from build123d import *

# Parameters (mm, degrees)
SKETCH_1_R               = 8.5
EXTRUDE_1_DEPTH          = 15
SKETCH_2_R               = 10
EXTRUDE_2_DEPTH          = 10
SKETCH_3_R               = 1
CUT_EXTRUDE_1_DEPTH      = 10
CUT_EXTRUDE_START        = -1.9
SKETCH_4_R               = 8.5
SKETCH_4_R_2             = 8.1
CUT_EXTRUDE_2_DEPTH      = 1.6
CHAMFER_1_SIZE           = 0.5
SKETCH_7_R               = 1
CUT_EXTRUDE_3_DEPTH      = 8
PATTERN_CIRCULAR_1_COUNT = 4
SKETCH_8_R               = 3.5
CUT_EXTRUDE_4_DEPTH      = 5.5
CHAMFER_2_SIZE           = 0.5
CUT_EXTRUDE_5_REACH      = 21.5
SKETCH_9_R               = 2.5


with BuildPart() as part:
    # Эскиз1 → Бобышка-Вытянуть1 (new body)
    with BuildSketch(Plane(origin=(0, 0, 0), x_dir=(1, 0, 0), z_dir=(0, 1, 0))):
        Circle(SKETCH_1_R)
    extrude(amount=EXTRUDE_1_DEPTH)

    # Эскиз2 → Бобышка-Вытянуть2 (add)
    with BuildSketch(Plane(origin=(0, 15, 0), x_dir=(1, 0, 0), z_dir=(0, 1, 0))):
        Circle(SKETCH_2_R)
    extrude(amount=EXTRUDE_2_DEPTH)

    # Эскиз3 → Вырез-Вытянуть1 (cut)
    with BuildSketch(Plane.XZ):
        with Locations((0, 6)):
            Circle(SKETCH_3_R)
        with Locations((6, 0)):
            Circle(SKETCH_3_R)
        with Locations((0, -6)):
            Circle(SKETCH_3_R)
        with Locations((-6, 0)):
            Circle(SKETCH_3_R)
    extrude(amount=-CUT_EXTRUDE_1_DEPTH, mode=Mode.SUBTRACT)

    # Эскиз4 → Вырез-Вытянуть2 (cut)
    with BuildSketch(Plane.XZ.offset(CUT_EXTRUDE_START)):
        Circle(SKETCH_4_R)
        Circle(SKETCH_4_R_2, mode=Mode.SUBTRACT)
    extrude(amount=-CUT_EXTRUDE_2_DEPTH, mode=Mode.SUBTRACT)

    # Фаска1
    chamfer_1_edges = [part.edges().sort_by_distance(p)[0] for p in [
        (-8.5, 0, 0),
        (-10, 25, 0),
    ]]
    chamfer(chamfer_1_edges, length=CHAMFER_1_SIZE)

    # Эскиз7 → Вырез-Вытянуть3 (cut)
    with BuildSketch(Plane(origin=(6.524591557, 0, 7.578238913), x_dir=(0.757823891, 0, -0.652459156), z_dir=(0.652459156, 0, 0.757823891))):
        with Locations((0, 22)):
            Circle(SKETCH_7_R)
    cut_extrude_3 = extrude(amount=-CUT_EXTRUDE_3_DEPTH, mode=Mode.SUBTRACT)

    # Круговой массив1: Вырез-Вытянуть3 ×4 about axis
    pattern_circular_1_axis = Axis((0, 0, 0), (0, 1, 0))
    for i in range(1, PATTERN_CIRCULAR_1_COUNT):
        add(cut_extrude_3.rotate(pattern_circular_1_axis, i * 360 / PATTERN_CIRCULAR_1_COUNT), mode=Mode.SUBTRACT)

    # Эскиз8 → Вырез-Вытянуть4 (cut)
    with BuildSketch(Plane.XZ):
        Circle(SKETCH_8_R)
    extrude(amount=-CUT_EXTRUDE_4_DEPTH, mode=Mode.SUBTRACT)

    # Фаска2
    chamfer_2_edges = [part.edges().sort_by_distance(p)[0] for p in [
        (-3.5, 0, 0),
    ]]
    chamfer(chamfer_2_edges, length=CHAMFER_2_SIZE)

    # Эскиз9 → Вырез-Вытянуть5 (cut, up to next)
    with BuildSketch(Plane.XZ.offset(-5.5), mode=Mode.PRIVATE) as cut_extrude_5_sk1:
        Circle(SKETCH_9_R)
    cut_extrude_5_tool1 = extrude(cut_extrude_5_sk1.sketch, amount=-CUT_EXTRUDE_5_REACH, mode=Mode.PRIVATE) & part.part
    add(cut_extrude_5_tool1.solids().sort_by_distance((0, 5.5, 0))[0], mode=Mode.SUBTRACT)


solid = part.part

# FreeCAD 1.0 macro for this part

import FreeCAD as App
import Part
import Sketcher
Q = App.Units.Quantity


def edges_at(feature, points):
    """Names of the edges that pass closest to the given points."""
    edges = feature.Shape.Edges
    near = lambda p: min(range(len(edges)), key=lambda i: edges[i].distToShape(Part.Vertex(*p))[0])
    return sorted({f"Edge{near(p) + 1}" for p in points})

doc = App.newDocument("Part")
body = doc.addObject("PartDesign::Body", "Body")

sketch1 = doc.addObject("Sketcher::SketchObject", "Sketch")
body.addObject(sketch1)
sketch1.AttachmentSupport = (doc.XZ_Plane, [""])
sketch1.MapMode = "FlatFace"
sketch1.addGeometry(Part.Circle(App.Vector(0, 0, 0), App.Vector(0, 0, 1), 8), False)
sketch1.addConstraint([
    Sketcher.Constraint("Coincident", 0, 3, -1, 1),
    Sketcher.Constraint("Diameter", 0, Q("17 mm")),
])
pad1 = doc.addObject("PartDesign::Pad", "Pad")
body.addObject(pad1)
pad1.Profile = sketch1
pad1.Length = 15
pad1.Reversed = True

sketch2 = doc.addObject("Sketcher::SketchObject", "Sketch001")
body.addObject(sketch2)
sketch2.AttachmentSupport = (doc.XZ_Plane, [""])
sketch2.MapMode = "FlatFace"
sketch2.AttachmentOffset = App.Placement(App.Vector(0, 0, -15), App.Rotation())
sketch2.addGeometry(Part.Circle(App.Vector(0, 0, 0), App.Vector(0, 0, 1), 10), False)
sketch2.addConstraint([
    Sketcher.Constraint("Coincident", 0, 3, -1, 1),
    Sketcher.Constraint("Diameter", 0, Q("20 mm")),
])
pad2 = doc.addObject("PartDesign::Pad", "Pad001")
body.addObject(pad2)
pad2.Profile = sketch2
pad2.Length = 10
pad2.Reversed = True

sketch3 = doc.addObject("Sketcher::SketchObject", "Sketch002")
body.addObject(sketch3)
sketch3.AttachmentSupport = (doc.XZ_Plane, [""])
sketch3.MapMode = "FlatFace"
sketch3.addGeometry([
    Part.Circle(App.Vector(0, 6, 0), App.Vector(0, 0, 1), 1),
    Part.Circle(App.Vector(6, 0, 0), App.Vector(0, 0, 1), 1),
    Part.Circle(App.Vector(0, -6, 0), App.Vector(0, 0, 1), 1),
    Part.Circle(App.Vector(-6, 0, 0), App.Vector(0, 0, 1), 1),
], False)
sketch3.addConstraint([
    Sketcher.Constraint("Equal", 0, 1),
    Sketcher.Constraint("Equal", 1, 2),
    Sketcher.Constraint("Equal", 2, 3),
    Sketcher.Constraint("Symmetric", 0, 3, 2, 3, -1, 1),
    Sketcher.Constraint("Symmetric", 1, 3, 3, 3, -1, 1),
    Sketcher.Constraint("PointOnObject", 0, 3, -2),
    Sketcher.Constraint("PointOnObject", 1, 3, -1),
    Sketcher.Constraint("Diameter", 0, Q("2 mm")),
    Sketcher.Constraint("DistanceY", -1, 1, 0, 3, Q("6 mm")),
    Sketcher.Constraint("DistanceX", -1, 1, 1, 3, Q("6 mm")),
])
pocket1 = doc.addObject("PartDesign::Pocket", "Pocket")
body.addObject(pocket1)
pocket1.Profile = sketch3
pocket1.Length = 10

sketch4 = doc.addObject("Sketcher::SketchObject", "Sketch003")
body.addObject(sketch4)
sketch4.AttachmentSupport = (doc.XZ_Plane, [""])
sketch4.MapMode = "FlatFace"
sketch4.AttachmentOffset = App.Placement(App.Vector(0, 0, -1.9), App.Rotation())
sketch4.addGeometry([
    Part.Circle(App.Vector(0, 0, 0), App.Vector(0, 0, 1), 8),
    Part.Circle(App.Vector(0, 0, 0), App.Vector(0, 0, 1), 8),
], False)
sketch4.addConstraint([
    Sketcher.Constraint("Coincident", 0, 3, -1, 1),
    Sketcher.Constraint("Coincident", 1, 3, -1, 1),
    Sketcher.Constraint("Diameter", 0, Q("17 mm")),
    Sketcher.Constraint("Diameter", 1, Q("16.2 mm")),
])
pocket2 = doc.addObject("PartDesign::Pocket", "Pocket001")
body.addObject(pocket2)
pocket2.Profile = sketch4
pocket2.Length = 1.6
doc.recompute()

chamfer = doc.addObject("PartDesign::Chamfer", "Chamfer")
body.addObject(chamfer)
chamfer.Base = (pocket2, edges_at(pocket2, [(-8.5, 0, 0), (-10, 25, 0)]))
chamfer.Size = 0.5

sketch5 = doc.addObject("Sketcher::SketchObject", "Sketch004")
body.addObject(sketch5)
sketch5.Placement = App.Placement(App.Vector(6.524592, 0, 7.578239), App.Rotation(App.Vector(0.757823891, 0, -0.652459156), App.Vector(0, 1, 0), App.Vector(0.652459156, 0, 0.757823891), "ZXY"))
sketch5.addGeometry(Part.Circle(App.Vector(0, 22, 0), App.Vector(0, 0, 1), 1), False)
sketch5.addConstraint([
    Sketcher.Constraint("PointOnObject", 0, 3, -2),
    Sketcher.Constraint("Diameter", 0, Q("2 mm")),
    Sketcher.Constraint("DistanceY", -1, 1, 0, 3, Q("22 mm")),
])
pocket3 = doc.addObject("PartDesign::Pocket", "Pocket002")
body.addObject(pocket3)
pocket3.Profile = sketch5
pocket3.Length = 8
doc.recompute()

polarpattern = doc.addObject("PartDesign::PolarPattern", "PolarPattern")
body.addObject(polarpattern)
polarpattern.Originals = [pocket3]
polarpattern.Axis = (doc.Y_Axis, [""])
polarpattern.Angle = 360
polarpattern.Occurrences = 4
body.Tip = polarpattern

sketch6 = doc.addObject("Sketcher::SketchObject", "Sketch005")
body.addObject(sketch6)
sketch6.AttachmentSupport = (doc.XZ_Plane, [""])
sketch6.MapMode = "FlatFace"
sketch6.addGeometry(Part.Circle(App.Vector(0, 0, 0), App.Vector(0, 0, 1), 3.5), False)
sketch6.addConstraint([
    Sketcher.Constraint("Coincident", 0, 3, -1, 1),
    Sketcher.Constraint("Diameter", 0, Q("7 mm")),
])
pocket4 = doc.addObject("PartDesign::Pocket", "Pocket003")
body.addObject(pocket4)
pocket4.Profile = sketch6
pocket4.Length = 5.5
doc.recompute()

chamfer2 = doc.addObject("PartDesign::Chamfer", "Chamfer001")
body.addObject(chamfer2)
chamfer2.Base = (pocket4, edges_at(pocket4, [(-3.5, 0, 0)]))
chamfer2.Size = 0.5

sketch7 = doc.addObject("Sketcher::SketchObject", "Sketch006")
body.addObject(sketch7)
sketch7.AttachmentSupport = (doc.XZ_Plane, [""])
sketch7.MapMode = "FlatFace"
sketch7.AttachmentOffset = App.Placement(App.Vector(0, 0, -5.5), App.Rotation())
sketch7.addGeometry(Part.Circle(App.Vector(0, 0, 0), App.Vector(0, 0, 1), 2.5), False)
sketch7.addConstraint([
    Sketcher.Constraint("Coincident", 0, 3, -1, 1),
    Sketcher.Constraint("Diameter", 0, Q("5 mm")),
])
pocket5 = doc.addObject("PartDesign::Pocket", "Pocket004")
body.addObject(pocket5)
pocket5.Profile = sketch7
pocket5.Type = "UpToFirst"

doc.recompute()
